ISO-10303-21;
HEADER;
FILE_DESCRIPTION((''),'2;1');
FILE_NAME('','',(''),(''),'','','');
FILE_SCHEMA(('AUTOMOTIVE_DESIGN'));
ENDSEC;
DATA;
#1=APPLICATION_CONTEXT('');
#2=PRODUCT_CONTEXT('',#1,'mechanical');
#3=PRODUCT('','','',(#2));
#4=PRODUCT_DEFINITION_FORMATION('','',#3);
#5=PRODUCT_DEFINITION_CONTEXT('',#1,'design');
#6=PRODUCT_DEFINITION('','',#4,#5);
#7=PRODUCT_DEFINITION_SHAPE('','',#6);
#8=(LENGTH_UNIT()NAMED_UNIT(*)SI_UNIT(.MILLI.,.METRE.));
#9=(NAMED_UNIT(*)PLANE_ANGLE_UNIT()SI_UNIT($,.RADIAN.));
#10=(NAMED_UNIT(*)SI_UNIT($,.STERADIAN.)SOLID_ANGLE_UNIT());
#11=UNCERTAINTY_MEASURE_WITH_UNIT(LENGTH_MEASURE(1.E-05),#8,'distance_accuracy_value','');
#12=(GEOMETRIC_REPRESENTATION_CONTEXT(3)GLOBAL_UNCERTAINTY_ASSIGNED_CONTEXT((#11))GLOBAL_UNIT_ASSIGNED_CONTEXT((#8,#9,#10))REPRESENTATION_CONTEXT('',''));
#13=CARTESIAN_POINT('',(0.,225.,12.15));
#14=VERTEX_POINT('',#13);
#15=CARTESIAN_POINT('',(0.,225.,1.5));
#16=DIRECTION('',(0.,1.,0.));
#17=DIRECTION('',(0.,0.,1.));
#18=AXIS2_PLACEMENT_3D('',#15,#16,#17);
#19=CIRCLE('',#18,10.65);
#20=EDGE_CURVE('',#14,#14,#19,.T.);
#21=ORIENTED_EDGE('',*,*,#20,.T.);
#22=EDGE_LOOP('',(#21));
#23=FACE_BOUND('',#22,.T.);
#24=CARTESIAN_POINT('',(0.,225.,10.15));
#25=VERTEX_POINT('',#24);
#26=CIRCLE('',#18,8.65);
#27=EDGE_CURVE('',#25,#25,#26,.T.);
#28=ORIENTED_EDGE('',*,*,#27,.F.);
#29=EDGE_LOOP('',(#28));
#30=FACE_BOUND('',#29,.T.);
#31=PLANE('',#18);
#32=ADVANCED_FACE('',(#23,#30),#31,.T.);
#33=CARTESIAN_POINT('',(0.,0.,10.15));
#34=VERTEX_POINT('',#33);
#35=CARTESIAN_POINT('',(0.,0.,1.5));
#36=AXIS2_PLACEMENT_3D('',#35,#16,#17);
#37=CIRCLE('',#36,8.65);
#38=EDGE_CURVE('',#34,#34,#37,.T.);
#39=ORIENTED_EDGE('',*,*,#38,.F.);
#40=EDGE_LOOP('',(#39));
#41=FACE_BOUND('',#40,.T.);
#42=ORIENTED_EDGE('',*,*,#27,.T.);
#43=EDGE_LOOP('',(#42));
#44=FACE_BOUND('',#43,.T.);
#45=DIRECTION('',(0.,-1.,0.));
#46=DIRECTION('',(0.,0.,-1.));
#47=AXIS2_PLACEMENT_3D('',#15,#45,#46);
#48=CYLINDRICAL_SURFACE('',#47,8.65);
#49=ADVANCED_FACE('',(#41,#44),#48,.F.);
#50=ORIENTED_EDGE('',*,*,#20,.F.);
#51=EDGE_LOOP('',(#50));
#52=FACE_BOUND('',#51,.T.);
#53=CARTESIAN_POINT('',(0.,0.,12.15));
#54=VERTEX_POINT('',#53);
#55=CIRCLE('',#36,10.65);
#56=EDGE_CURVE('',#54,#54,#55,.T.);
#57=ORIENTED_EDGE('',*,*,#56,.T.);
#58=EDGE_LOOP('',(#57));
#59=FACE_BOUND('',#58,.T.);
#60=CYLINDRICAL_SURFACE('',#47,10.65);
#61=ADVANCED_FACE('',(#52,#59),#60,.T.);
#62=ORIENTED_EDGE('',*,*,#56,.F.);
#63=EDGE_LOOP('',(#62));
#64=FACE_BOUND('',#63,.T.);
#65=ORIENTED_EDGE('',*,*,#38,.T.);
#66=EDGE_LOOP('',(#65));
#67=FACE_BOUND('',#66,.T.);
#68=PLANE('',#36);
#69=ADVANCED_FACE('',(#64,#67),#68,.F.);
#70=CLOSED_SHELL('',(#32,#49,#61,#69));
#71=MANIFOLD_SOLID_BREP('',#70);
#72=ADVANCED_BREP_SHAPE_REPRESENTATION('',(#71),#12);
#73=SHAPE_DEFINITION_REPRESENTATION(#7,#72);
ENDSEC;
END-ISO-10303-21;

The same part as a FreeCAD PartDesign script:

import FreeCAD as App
import Part
import Sketcher
Q = App.Units.Quantity

doc = App.newDocument("Part")
params = doc.addObject("Spreadsheet::Sheet", "Params")
for row, (alias, value) in enumerate([
    ("sketch1_diameter", "21.3 mm"),
    ("sketch1_diameter2", "17.3 mm"),
    ("pad1_length", "225 mm"),
], start=1):
    params.set(f"A{row}", alias)
    params.set(f"B{row}", "=" + value)
    params.setAlias(f"B{row}", alias)

body = doc.addObject("PartDesign::Body", "Body")

sketch1 = doc.addObject("Sketcher::SketchObject", "Sketch")
body.addObject(sketch1)
sketch1.AttachmentSupport = (doc.XZ_Plane, [""])
sketch1.MapMode = "FlatFace"
sketch1.addGeometry(Part.Circle(App.Vector(0, 2, 0), App.Vector(0, 0, 1), 11), False)
sketch1.addGeometry(Part.Circle(App.Vector(0, 2, 0), App.Vector(0, 0, 1), 9), False)
sketch1.addConstraint(Sketcher.Constraint("Coincident", 1, 3, 0, 3))
sketch1.addConstraint(Sketcher.Constraint("PointOnObject", 0, 3, -2))
sketch1.addConstraint(Sketcher.Constraint("Diameter", 0, Q("21.3 mm")))
sketch1.addConstraint(Sketcher.Constraint("Diameter", 1, Q("17.3 mm")))
sketch1.addConstraint(Sketcher.Constraint("DistanceY", -1, 1, 0, 3, Q("1.5 mm")))
sketch1.setExpression("Constraints[2]", "Params.sketch1_diameter")
sketch1.setExpression("Constraints[3]", "Params.sketch1_diameter2")
pad1 = doc.addObject("PartDesign::Pad", "Pad")
body.addObject(pad1)
pad1.Profile = sketch1
pad1.setExpression("Length", "Params.pad1_length")
pad1.Reversed = True

doc.recompute()
